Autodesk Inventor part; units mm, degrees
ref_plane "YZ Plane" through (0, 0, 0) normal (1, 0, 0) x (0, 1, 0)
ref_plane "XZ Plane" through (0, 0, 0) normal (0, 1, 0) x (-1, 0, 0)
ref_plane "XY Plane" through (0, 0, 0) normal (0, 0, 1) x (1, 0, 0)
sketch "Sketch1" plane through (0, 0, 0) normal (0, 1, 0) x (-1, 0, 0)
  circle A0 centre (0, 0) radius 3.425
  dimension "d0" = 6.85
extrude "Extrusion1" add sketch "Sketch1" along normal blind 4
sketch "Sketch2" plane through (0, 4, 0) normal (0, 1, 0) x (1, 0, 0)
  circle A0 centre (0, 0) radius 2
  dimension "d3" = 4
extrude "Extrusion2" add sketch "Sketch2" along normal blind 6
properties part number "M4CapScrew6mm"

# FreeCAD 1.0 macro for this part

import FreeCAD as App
import Part
import Sketcher

V = App.Vector

doc = App.newDocument("Part")
body = doc.addObject("PartDesign::Body", "Body")

sketch1 = body.newObject("Sketcher::SketchObject", "Sketch")
sketch1.AttachmentSupport = (doc.getObject("XZ_Plane"), [""])
sketch1.MapMode = "FlatFace"
sketch1.addGeometry(Part.Circle(V(0, 0, 0), V(0, 0, 1), 3.4), False)
sketch1.addConstraint([
    Sketcher.Constraint("Coincident", 0, 3, -1, 1),
    Sketcher.Constraint("Diameter", 0, 6.85),
])
pad1 = body.newObject("PartDesign::Pad", "Pad")
pad1.Profile = sketch1
pad1.Length = 4
pad1.Reversed = True

sketch2 = body.newObject("Sketcher::SketchObject", "Sketch001")
sketch2.AttachmentSupport = (doc.getObject("XZ_Plane"), [""])
sketch2.MapMode = "FlatFace"
sketch2.AttachmentOffset = App.Placement(V(0, 0, -4), App.Rotation())
sketch2.addGeometry(Part.Circle(V(0, 0, 0), V(0, 0, 1), 2), False)
sketch2.addConstraint([
    Sketcher.Constraint("Coincident", 0, 3, -1, 1),
    Sketcher.Constraint("Diameter", 0, 4.0),
])
pad2 = body.newObject("PartDesign::Pad", "Pad001")
pad2.Profile = sketch2
pad2.Length = 6
pad2.Reversed = True

doc.recompute()
